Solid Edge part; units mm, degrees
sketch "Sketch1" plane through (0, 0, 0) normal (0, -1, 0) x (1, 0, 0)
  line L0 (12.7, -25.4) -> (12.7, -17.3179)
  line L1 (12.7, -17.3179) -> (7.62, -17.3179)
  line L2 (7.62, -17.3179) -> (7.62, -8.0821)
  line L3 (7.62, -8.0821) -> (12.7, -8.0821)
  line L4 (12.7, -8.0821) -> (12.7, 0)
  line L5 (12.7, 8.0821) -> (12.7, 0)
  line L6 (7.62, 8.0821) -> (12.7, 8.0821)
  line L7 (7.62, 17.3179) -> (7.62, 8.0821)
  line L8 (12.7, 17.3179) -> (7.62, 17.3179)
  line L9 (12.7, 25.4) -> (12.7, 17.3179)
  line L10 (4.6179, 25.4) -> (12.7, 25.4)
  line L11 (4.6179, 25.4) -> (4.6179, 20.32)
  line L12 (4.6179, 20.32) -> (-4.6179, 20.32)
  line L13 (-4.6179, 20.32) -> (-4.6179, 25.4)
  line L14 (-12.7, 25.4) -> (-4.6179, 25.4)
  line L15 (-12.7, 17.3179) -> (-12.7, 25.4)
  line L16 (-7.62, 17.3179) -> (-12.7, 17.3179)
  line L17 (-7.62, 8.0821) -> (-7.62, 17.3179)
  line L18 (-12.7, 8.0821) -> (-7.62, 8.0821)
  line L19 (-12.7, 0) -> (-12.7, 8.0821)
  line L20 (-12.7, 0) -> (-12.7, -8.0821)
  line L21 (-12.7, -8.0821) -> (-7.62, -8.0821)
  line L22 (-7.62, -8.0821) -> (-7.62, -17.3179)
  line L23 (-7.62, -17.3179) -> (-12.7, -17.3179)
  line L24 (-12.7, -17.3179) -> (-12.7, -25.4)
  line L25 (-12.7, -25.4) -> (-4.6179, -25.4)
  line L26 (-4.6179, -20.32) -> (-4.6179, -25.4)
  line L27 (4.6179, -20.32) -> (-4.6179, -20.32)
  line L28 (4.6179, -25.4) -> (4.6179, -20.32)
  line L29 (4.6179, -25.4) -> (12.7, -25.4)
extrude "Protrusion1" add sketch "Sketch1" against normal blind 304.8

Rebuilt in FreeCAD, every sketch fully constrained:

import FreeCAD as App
import Part
import Sketcher
from FreeCAD import Vector
Q = App.Units.Quantity


def add_polygon(sketch, points):
    """Adds a closed chain of lines whose ends are joined by coincident constraints."""
    first, n = sketch.GeometryCount, len(points)
    for a, b in zip(points, points[1:] + points[:1]):
        sketch.addGeometry(Part.LineSegment(App.Vector(*a, 0), App.Vector(*b, 0)), False)
    for i in range(n):
        sketch.addConstraint(Sketcher.Constraint("Coincident", first + i, 2, first + (i + 1) % n, 1))

doc = App.newDocument("Part")
body = doc.addObject("PartDesign::Body", "Body")

sketch1 = body.newObject("Sketcher::SketchObject", "Sketch")
sketch1.AttachmentSupport = (doc.getObject("XZ_Plane"), [""])
sketch1.MapMode = "FlatFace"
add_polygon(sketch1, [(4.6179, -25.4), (12.7, -25.4), (12.7, -17.3179), (7.62, -17.3179), (7.62, -8.0821), (12.7, -8.0821), (12.7, 8.0821), (7.62, 8.0821), (7.62, 17.3179), (12.7, 17.3179), (12.7, 25.4), (4.6179, 25.4), (4.6179, 20.32), (-4.6179, 20.32), (-4.6179, 25.4), (-12.7, 25.4), (-12.7, 17.3179), (-7.62, 17.3179), (-7.62, 8.0821), (-12.7, 8.0821), (-12.7, -8.0821), (-7.62, -8.0821), (-7.62, -17.3179), (-12.7, -17.3179), (-12.7, -25.4), (-4.6179, -25.4), (-4.6179, -20.32), (4.6179, -20.32)])
sketch1.addConstraint([
    Sketcher.Constraint("Horizontal", 0),
    Sketcher.Constraint("Vertical", 1),
    Sketcher.Constraint("Horizontal", 2),
    Sketcher.Constraint("Vertical", 3),
    Sketcher.Constraint("Horizontal", 4),
    Sketcher.Constraint("Vertical", 5),
    Sketcher.Constraint("Horizontal", 6),
    Sketcher.Constraint("Vertical", 7),
    Sketcher.Constraint("Horizontal", 8),
    Sketcher.Constraint("Vertical", 9),
    Sketcher.Constraint("Horizontal", 10),
    Sketcher.Constraint("Vertical", 11),
    Sketcher.Constraint("Horizontal", 12),
    Sketcher.Constraint("Vertical", 13),
    Sketcher.Constraint("Horizontal", 14),
    Sketcher.Constraint("Vertical", 15),
    Sketcher.Constraint("Horizontal", 16),
    Sketcher.Constraint("Vertical", 17),
    Sketcher.Constraint("Horizontal", 18),
    Sketcher.Constraint("Vertical", 19),
    Sketcher.Constraint("Horizontal", 20),
    Sketcher.Constraint("Vertical", 21),
    Sketcher.Constraint("Horizontal", 22),
    Sketcher.Constraint("Vertical", 23),
    Sketcher.Constraint("Horizontal", 24),
    Sketcher.Constraint("Vertical", 25),
    Sketcher.Constraint("Horizontal", 26),
    Sketcher.Constraint("Vertical", 27),
    Sketcher.Constraint("Symmetric", 0, 2, 14, 2, -1, 1),
    Sketcher.Constraint("Symmetric", 2, 2, 16, 2, -1, 1),
    Sketcher.Constraint("Symmetric", 4, 2, 18, 2, -1, 1),
    Sketcher.Constraint("Symmetric", 6, 2, 20, 2, -1, 1),
    Sketcher.Constraint("Symmetric", 8, 2, 22, 2, -1, 1),
    Sketcher.Constraint("Symmetric", 10, 2, 24, 2, -1, 1),
    Sketcher.Constraint("Symmetric", 12, 2, 26, 2, -1, 1),
    Sketcher.Constraint("Symmetric", 10, 2, 13, 2, -2),
    Sketcher.Constraint("Symmetric", 8, 2, 15, 2, -2),
    Sketcher.Constraint("Symmetric", 6, 2, 17, 2, -2),
    Sketcher.Constraint("Vertical", 1, 2, 4, 2),
    Sketcher.Constraint("Equal", 24, 1),
    Sketcher.Constraint("Equal", 26, 3),
    Sketcher.Constraint("Equal", 22, 11),
    Sketcher.Constraint("DistanceX", 2, 2, 2, 1, Q("0.2 in")),
    Sketcher.Constraint("DistanceY", 0, 2, -1, 1, Q("1 in")),
    Sketcher.Constraint("DistanceY", 1, 2, 5, 2, Q("1 in")),
    Sketcher.Constraint("DistanceX", 0, 1, 0, 2, Q("0.3182 in")),
])
pad1 = body.newObject("PartDesign::Pad", "Pad")
pad1.Profile = sketch1
pad1.Length = Q("12 in")
pad1.Reversed = True

doc.recompute()
